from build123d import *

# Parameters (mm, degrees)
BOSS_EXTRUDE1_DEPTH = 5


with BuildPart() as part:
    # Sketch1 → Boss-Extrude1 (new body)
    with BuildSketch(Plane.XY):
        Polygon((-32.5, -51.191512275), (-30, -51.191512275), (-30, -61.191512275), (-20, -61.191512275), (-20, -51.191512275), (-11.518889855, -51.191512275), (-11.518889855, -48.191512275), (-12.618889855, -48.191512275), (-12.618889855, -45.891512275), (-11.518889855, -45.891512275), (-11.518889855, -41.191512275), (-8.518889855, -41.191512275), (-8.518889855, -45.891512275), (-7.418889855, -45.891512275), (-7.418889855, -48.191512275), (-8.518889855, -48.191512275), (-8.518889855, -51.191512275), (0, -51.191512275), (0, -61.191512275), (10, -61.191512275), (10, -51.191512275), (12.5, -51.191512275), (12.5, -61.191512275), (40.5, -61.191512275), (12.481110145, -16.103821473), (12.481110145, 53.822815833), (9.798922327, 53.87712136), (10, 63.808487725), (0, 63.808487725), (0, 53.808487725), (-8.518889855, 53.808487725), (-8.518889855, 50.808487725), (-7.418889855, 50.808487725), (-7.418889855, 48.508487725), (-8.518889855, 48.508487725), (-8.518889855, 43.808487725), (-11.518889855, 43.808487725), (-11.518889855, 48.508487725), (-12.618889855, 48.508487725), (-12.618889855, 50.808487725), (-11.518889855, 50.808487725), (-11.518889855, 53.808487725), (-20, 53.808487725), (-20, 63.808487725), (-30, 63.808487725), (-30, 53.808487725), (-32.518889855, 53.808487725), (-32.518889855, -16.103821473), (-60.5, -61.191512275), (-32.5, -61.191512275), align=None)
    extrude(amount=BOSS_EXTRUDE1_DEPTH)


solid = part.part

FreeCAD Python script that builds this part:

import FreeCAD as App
import Part
import Sketcher

V = App.Vector

doc = App.newDocument("Part")
params = doc.addObject("Spreadsheet::Sheet", "Params")
for row, (alias, value) in enumerate([
    ("sketch1_width", "10 mm"),
    ("sketch1_width2", "3 mm"),
    ("sketch1_width3", "28 mm"),
    ("sketch1_width4", "2.5 mm"),
    ("sketch1_width5", "1.1 mm"),
    ("pad1_length", "5 mm"),
], start=1):
    params.set(f"A{row}", alias)
    params.set(f"B{row}", "=" + value)
    params.setAlias(f"B{row}", alias)

body = doc.addObject("PartDesign::Body", "Body")

# Sketch on XY plane
sketch1 = body.newObject("Sketcher::SketchObject", "Sketch")
sketch1.AttachmentSupport = (doc.getObject("XY_Plane"), [""])
sketch1.MapMode = "FlatFace"
sketch1.addGeometry(Part.LineSegment(V(-32.5, -51.2, 0), V(-30, -51.2, 0)), False)
sketch1.addGeometry(Part.LineSegment(V(-30, -51.2, 0), V(-30, -61.2, 0)), False)
sketch1.addGeometry(Part.LineSegment(V(-30, -61.2, 0), V(-20, -61.2, 0)), False)
sketch1.addGeometry(Part.LineSegment(V(-20, -61.2, 0), V(-20, -51.2, 0)), False)
sketch1.addGeometry(Part.LineSegment(V(-20, -51.2, 0), V(-11.5, -51.2, 0)), False)
sketch1.addGeometry(Part.LineSegment(V(-11.5, -51.2, 0), V(-11.5, -48.2, 0)), False)
sketch1.addGeometry(Part.LineSegment(V(-11.5, -48.2, 0), V(-12.6, -48.2, 0)), False)
sketch1.addGeometry(Part.LineSegment(V(-12.6, -48.2, 0), V(-12.6, -45.9, 0)), False)
sketch1.addGeometry(Part.LineSegment(V(-12.6, -45.9, 0), V(-11.5, -45.9, 0)), False)
sketch1.addGeometry(Part.LineSegment(V(-11.5, -45.9, 0), V(-11.5, -41.2, 0)), False)
sketch1.addGeometry(Part.LineSegment(V(-11.5, -41.2, 0), V(-8.5, -41.2, 0)), False)
sketch1.addGeometry(Part.LineSegment(V(-8.5, -41.2, 0), V(-8.5, -45.9, 0)), False)
sketch1.addGeometry(Part.LineSegment(V(-8.5, -45.9, 0), V(-7.4, -45.9, 0)), False)
sketch1.addGeometry(Part.LineSegment(V(-7.4, -45.9, 0), V(-7.4, -48.2, 0)), False)
sketch1.addGeometry(Part.LineSegment(V(-7.4, -48.2, 0), V(-8.5, -48.2, 0)), False)
sketch1.addGeometry(Part.LineSegment(V(-8.5, -48.2, 0), V(-8.5, -51.2, 0)), False)
sketch1.addGeometry(Part.LineSegment(V(-8.5, -51.2, 0), V(0, -51.2, 0)), False)
sketch1.addGeometry(Part.LineSegment(V(0, -51.2, 0), V(0, -61.2, 0)), False)
sketch1.addGeometry(Part.LineSegment(V(0, -61.2, 0), V(10, -61.2, 0)), False)
sketch1.addGeometry(Part.LineSegment(V(10, -61.2, 0), V(10, -51.2, 0)), False)
sketch1.addGeometry(Part.LineSegment(V(10, -51.2, 0), V(12.5, -51.2, 0)), False)
sketch1.addGeometry(Part.LineSegment(V(12.5, -51.2, 0), V(12.5, -61.2, 0)), False)
sketch1.addGeometry(Part.LineSegment(V(12.5, -61.2, 0), V(40.5, -61.2, 0)), False)
sketch1.addGeometry(Part.LineSegment(V(40.5, -61.2, 0), V(12.5, -16.1, 0)), False)
sketch1.addGeometry(Part.LineSegment(V(12.5, -16.1, 0), V(12.5, 53.8, 0)), False)
sketch1.addGeometry(Part.LineSegment(V(12.5, 53.8, 0), V(9.8, 53.9, 0)), False)
sketch1.addGeometry(Part.LineSegment(V(9.8, 53.9, 0), V(10, 63.8, 0)), False)
sketch1.addGeometry(Part.LineSegment(V(10, 63.8, 0), V(0, 63.8, 0)), False)
sketch1.addGeometry(Part.LineSegment(V(0, 63.8, 0), V(0, 53.8, 0)), False)
sketch1.addGeometry(Part.LineSegment(V(0, 53.8, 0), V(-8.5, 53.8, 0)), False)
sketch1.addGeometry(Part.LineSegment(V(-8.5, 53.8, 0), V(-8.5, 50.8, 0)), False)
sketch1.addGeometry(Part.LineSegment(V(-8.5, 50.8, 0), V(-7.4, 50.8, 0)), False)
sketch1.addGeometry(Part.LineSegment(V(-7.4, 50.8, 0), V(-7.4, 48.5, 0)), False)
sketch1.addGeometry(Part.LineSegment(V(-7.4, 48.5, 0), V(-8.5, 48.5, 0)), False)
sketch1.addGeometry(Part.LineSegment(V(-8.5, 48.5, 0), V(-8.5, 43.8, 0)), False)
sketch1.addGeometry(Part.LineSegment(V(-8.5, 43.8, 0), V(-11.5, 43.8, 0)), False)
sketch1.addGeometry(Part.LineSegment(V(-11.5, 43.8, 0), V(-11.5, 48.5, 0)), False)
sketch1.addGeometry(Part.LineSegment(V(-11.5, 48.5, 0), V(-12.6, 48.5, 0)), False)
sketch1.addGeometry(Part.LineSegment(V(-12.6, 48.5, 0), V(-12.6, 50.8, 0)), False)
sketch1.addGeometry(Part.LineSegment(V(-12.6, 50.8, 0), V(-11.5, 50.8, 0)), False)
sketch1.addGeometry(Part.LineSegment(V(-11.5, 50.8, 0), V(-11.5, 53.8, 0)), False)
sketch1.addGeometry(Part.LineSegment(V(-11.5, 53.8, 0), V(-20, 53.8, 0)), False)
sketch1.addGeometry(Part.LineSegment(V(-20, 53.8, 0), V(-20, 63.8, 0)), False)
sketch1.addGeometry(Part.LineSegment(V(-20, 63.8, 0), V(-30, 63.8, 0)), False)
sketch1.addGeometry(Part.LineSegment(V(-30, 63.8, 0), V(-30, 53.8, 0)), False)
sketch1.addGeometry(Part.LineSegment(V(-30, 53.8, 0), V(-32.5, 53.8, 0)), False)
sketch1.addGeometry(Part.LineSegment(V(-32.5, 53.8, 0), V(-32.5, -16.1, 0)), False)
sketch1.addGeometry(Part.LineSegment(V(-32.5, -16.1, 0), V(-60.5, -61.2, 0)), False)
sketch1.addGeometry(Part.LineSegment(V(-60.5, -61.2, 0), V(-32.5, -61.2, 0)), False)
sketch1.addGeometry(Part.LineSegment(V(-32.5, -61.2, 0), V(-32.5, -51.2, 0)), False)
sketch1.addConstraint(Sketcher.Constraint("Coincident", 0, 2, 1, 1))
sketch1.addConstraint(Sketcher.Constraint("Coincident", 1, 2, 2, 1))
sketch1.addConstraint(Sketcher.Constraint("Coincident", 2, 2, 3, 1))
sketch1.addConstraint(Sketcher.Constraint("Coincident", 3, 2, 4, 1))
sketch1.addConstraint(Sketcher.Constraint("Coincident", 4, 2, 5, 1))
sketch1.addConstraint(Sketcher.Constraint("Coincident", 5, 2, 6, 1))
sketch1.addConstraint(Sketcher.Constraint("Coincident", 6, 2, 7, 1))
sketch1.addConstraint(Sketcher.Constraint("Coincident", 7, 2, 8, 1))
sketch1.addConstraint(Sketcher.Constraint("Coincident", 8, 2, 9, 1))
sketch1.addConstraint(Sketcher.Constraint("Coincident", 9, 2, 10, 1))
sketch1.addConstraint(Sketcher.Constraint("Coincident", 10, 2, 11, 1))
sketch1.addConstraint(Sketcher.Constraint("Coincident", 11, 2, 12, 1))
sketch1.addConstraint(Sketcher.Constraint("Coincident", 12, 2, 13, 1))
sketch1.addConstraint(Sketcher.Constraint("Coincident", 13, 2, 14, 1))
sketch1.addConstraint(Sketcher.Constraint("Coincident", 14, 2, 15, 1))
sketch1.addConstraint(Sketcher.Constraint("Coincident", 15, 2, 16, 1))
sketch1.addConstraint(Sketcher.Constraint("Coincident", 16, 2, 17, 1))
sketch1.addConstraint(Sketcher.Constraint("Coincident", 17, 2, 18, 1))
sketch1.addConstraint(Sketcher.Constraint("Coincident", 18, 2, 19, 1))
sketch1.addConstraint(Sketcher.Constraint("Coincident", 19, 2, 20, 1))
sketch1.addConstraint(Sketcher.Constraint("Coincident", 20, 2, 21, 1))
sketch1.addConstraint(Sketcher.Constraint("Coincident", 21, 2, 22, 1))
sketch1.addConstraint(Sketcher.Constraint("Coincident", 22, 2, 23, 1))
sketch1.addConstraint(Sketcher.Constraint("Coincident", 23, 2, 24, 1))
sketch1.addConstraint(Sketcher.Constraint("Coincident", 24, 2, 25, 1))
sketch1.addConstraint(Sketcher.Constraint("Coincident", 25, 2, 26, 1))
sketch1.addConstraint(Sketcher.Constraint("Coincident", 26, 2, 27, 1))
sketch1.addConstraint(Sketcher.Constraint("Coincident", 27, 2, 28, 1))
sketch1.addConstraint(Sketcher.Constraint("Coincident", 28, 2, 29, 1))
sketch1.addConstraint(Sketcher.Constraint("Coincident", 29, 2, 30, 1))
sketch1.addConstraint(Sketcher.Constraint("Coincident", 30, 2, 31, 1))
sketch1.addConstraint(Sketcher.Constraint("Coincident", 31, 2, 32, 1))
sketch1.addConstraint(Sketcher.Constraint("Coincident", 32, 2, 33, 1))
sketch1.addConstraint(Sketcher.Constraint("Coincident", 33, 2, 34, 1))
sketch1.addConstraint(Sketcher.Constraint("Coincident", 34, 2, 35, 1))
sketch1.addConstraint(Sketcher.Constraint("Coincident", 35, 2, 36, 1))
sketch1.addConstraint(Sketcher.Constraint("Coincident", 36, 2, 37, 1))
sketch1.addConstraint(Sketcher.Constraint("Coincident", 37, 2, 38, 1))
sketch1.addConstraint(Sketcher.Constraint("Coincident", 38, 2, 39, 1))
sketch1.addConstraint(Sketcher.Constraint("Coincident", 39, 2, 40, 1))
sketch1.addConstraint(Sketcher.Constraint("Coincident", 40, 2, 41, 1))
sketch1.addConstraint(Sketcher.Constraint("Coincident", 41, 2, 42, 1))
sketch1.addConstraint(Sketcher.Constraint("Coincident", 42, 2, 43, 1))
sketch1.addConstraint(Sketcher.Constraint("Coincident", 43, 2, 44, 1))
sketch1.addConstraint(Sketcher.Constraint("Coincident", 44, 2, 45, 1))
sketch1.addConstraint(Sketcher.Constraint("Coincident", 45, 2, 46, 1))
sketch1.addConstraint(Sketcher.Constraint("Coincident", 46, 2, 47, 1))
sketch1.addConstraint(Sketcher.Constraint("Coincident", 47, 2, 48, 1))
sketch1.addConstraint(Sketcher.Constraint("Coincident", 48, 2, 49, 1))
sketch1.addConstraint(Sketcher.Constraint("Coincident", 49, 2, 0, 1))
sketch1.addConstraint(Sketcher.Constraint("Horizontal", 0))
sketch1.addConstraint(Sketcher.Constraint("Vertical", 1))
sketch1.addConstraint(Sketcher.Constraint("Horizontal", 2))
sketch1.addConstraint(Sketcher.Constraint("Vertical", 3))
sketch1.addConstraint(Sketcher.Constraint("Horizontal", 4))
sketch1.addConstraint(Sketcher.Constraint("Vertical", 5))
sketch1.addConstraint(Sketcher.Constraint("Horizontal", 6))
sketch1.addConstraint(Sketcher.Constraint("Vertical", 7))
sketch1.addConstraint(Sketcher.Constraint("Horizontal", 8))
sketch1.addConstraint(Sketcher.Constraint("Vertical", 9))
sketch1.addConstraint(Sketcher.Constraint("Horizontal", 10))
sketch1.addConstraint(Sketcher.Constraint("Vertical", 11))
sketch1.addConstraint(Sketcher.Constraint("Horizontal", 12))
sketch1.addConstraint(Sketcher.Constraint("Vertical", 13))
sketch1.addConstraint(Sketcher.Constraint("Horizontal", 14))
sketch1.addConstraint(Sketcher.Constraint("Vertical", 15))
sketch1.addConstraint(Sketcher.Constraint("Horizontal", 16))
sketch1.addConstraint(Sketcher.Constraint("Vertical", 17))
sketch1.addConstraint(Sketcher.Constraint("Horizontal", 18))
sketch1.addConstraint(Sketcher.Constraint("Vertical", 19))
sketch1.addConstraint(Sketcher.Constraint("Horizontal", 20))
sketch1.addConstraint(Sketcher.Constraint("Vertical", 21))
sketch1.addConstraint(Sketcher.Constraint("Horizontal", 22))
sketch1.addConstraint(Sketcher.Constraint("Vertical", 24))
sketch1.addConstraint(Sketcher.Constraint("Horizontal", 27))
sketch1.addConstraint(Sketcher.Constraint("Vertical", 28))
sketch1.addConstraint(Sketcher.Constraint("Horizontal", 29))
sketch1.addConstraint(Sketcher.Constraint("Vertical", 30))
sketch1.addConstraint(Sketcher.Constraint("Horizontal", 31))
sketch1.addConstraint(Sketcher.Constraint("Vertical", 32))
sketch1.addConstraint(Sketcher.Constraint("Horizontal", 33))
sketch1.addConstraint(Sketcher.Constraint("Vertical", 34))
sketch1.addConstraint(Sketcher.Constraint("Horizontal", 35))
sketch1.addConstraint(Sketcher.Constraint("Vertical", 36))
sketch1.addConstraint(Sketcher.Constraint("Horizontal", 37))
sketch1.addConstraint(Sketcher.Constraint("Vertical", 38))
sketch1.addConstraint(Sketcher.Constraint("Horizontal", 39))
sketch1.addConstraint(Sketcher.Constraint("Vertical", 40))
sketch1.addConstraint(Sketcher.Constraint("Horizontal", 41))
sketch1.addConstraint(Sketcher.Constraint("Vertical", 42))
sketch1.addConstraint(Sketcher.Constraint("Horizontal", 43))
sketch1.addConstraint(Sketcher.Constraint("Vertical", 44))
sketch1.addConstraint(Sketcher.Constraint("Horizontal", 45))
sketch1.addConstraint(Sketcher.Constraint("Vertical", 46))
sketch1.addConstraint(Sketcher.Constraint("Horizontal", 48))
sketch1.addConstraint(Sketcher.Constraint("Vertical", 49))
sketch1.addConstraint(Sketcher.Constraint("PointOnObject", 16, 2, -2))
sketch1.addConstraint(Sketcher.Constraint("PointOnObject", 27, 2, -2))
sketch1.addConstraint(Sketcher.Constraint("Perpendicular", 25, 26))
sketch1.addConstraint(Sketcher.Constraint("Horizontal", 0, 2, 3, 2))
sketch1.addConstraint(Sketcher.Constraint("Horizontal", 8, 2, 11, 2))
sketch1.addConstraint(Sketcher.Constraint("Horizontal", 6, 2, 13, 2))
sketch1.addConstraint(Sketcher.Constraint("Horizontal", 4, 2, 15, 2))
sketch1.addConstraint(Sketcher.Constraint("Horizontal", 2, 2, 17, 2))
sketch1.addConstraint(Sketcher.Constraint("Horizontal", 16, 2, 19, 2))
sketch1.addConstraint(Sketcher.Constraint("Horizontal", 18, 2, 21, 2))
sketch1.addConstraint(Sketcher.Constraint("Horizontal", 33, 2, 36, 2))
sketch1.addConstraint(Sketcher.Constraint("Horizontal", 31, 2, 38, 2))
sketch1.addConstraint(Sketcher.Constraint("Horizontal", 29, 2, 40, 2))
sketch1.addConstraint(Sketcher.Constraint("Horizontal", 27, 2, 42, 2))
sketch1.addConstraint(Sketcher.Constraint("Horizontal", 41, 2, 44, 2))
sketch1.addConstraint(Sketcher.Constraint("Horizontal", 23, 2, 46, 2))
sketch1.addConstraint(Sketcher.Constraint("Horizontal", 22, 2, 47, 2))
sketch1.addConstraint(Sketcher.Constraint("Vertical", 5, 2, 8, 2))
sketch1.addConstraint(Sketcher.Constraint("Vertical", 11, 2, 14, 2))
sketch1.addConstraint(Sketcher.Constraint("Vertical", 19, 2, 26, 2))
sketch1.addConstraint(Sketcher.Constraint("Vertical", 15, 2, 29, 2))
sketch1.addConstraint(Sketcher.Constraint("Vertical", 13, 2, 31, 2))
sketch1.addConstraint(Sketcher.Constraint("Vertical", 30, 2, 33, 2))
sketch1.addConstraint(Sketcher.Constraint("Vertical", 9, 2, 35, 2))
sketch1.addConstraint(Sketcher.Constraint("Vertical", 7, 2, 37, 2))
sketch1.addConstraint(Sketcher.Constraint("Vertical", 36, 2, 39, 2))
sketch1.addConstraint(Sketcher.Constraint("Vertical", 3, 2, 41, 2))
sketch1.addConstraint(Sketcher.Constraint("Vertical", 1, 2, 43, 2))
sketch1.addConstraint(Sketcher.Constraint("Equal", 8, 12))
sketch1.addConstraint(Sketcher.Constraint("Equal", 2, 18))
sketch1.addConstraint(Sketcher.Constraint("Equal", 0, 20))
sketch1.addConstraint(Sketcher.Constraint("Equal", 22, 48))
sketch1.addConstraint(Sketcher.Constraint("Equal", 43, 1))
sketch1.addConstraint(Sketcher.Constraint("Equal", 35, 5))
sketch1.addConstraint(Sketcher.Constraint("Equal", 21, 28))
sketch1.addConstraint(Sketcher.Constraint("Equal", 15, 30))
sketch1.addConstraint(Sketcher.Constraint("Equal", 13, 32))
sketch1.addConstraint(Sketcher.Constraint("Equal", 11, 34))
sketch1.addConstraint(Sketcher.Constraint("DistanceX", 2, 1, 2, 2, 10.0))
sketch1.addConstraint(Sketcher.Constraint("DistanceX", 10, 1, 10, 2, 3.0))
sketch1.addConstraint(Sketcher.Constraint("DistanceX", 22, 1, 22, 2, 28.0))
sketch1.addConstraint(Sketcher.Constraint("DistanceX", 0, 1, 0, 2, 2.5))
sketch1.addConstraint(Sketcher.Constraint("DistanceX", 6, 2, 6, 1, 1.1))
sketch1.addConstraint(Sketcher.Constraint("DistanceY", 7, 1, 7, 2, 2.3))
sketch1.addConstraint(Sketcher.Constraint("DistanceY", 9, 1, 9, 2, 4.7))
sketch1.addConstraint(Sketcher.Constraint("DistanceX", 0, 2, -1, 1, 30.0))
sketch1.addConstraint(Sketcher.Constraint("DistanceX", 10, 2, 23, 2, 21.0))
sketch1.addConstraint(Sketcher.Constraint("DistanceY", 10, 2, 26, 2, 105.0))
sketch1.addConstraint(Sketcher.Constraint("DistanceX", 46, 2, 9, 2, 21.0))
sketch1.addConstraint(Sketcher.Constraint("Distance", 26, 9.933402))
sketch1.addConstraint(Sketcher.Constraint("DistanceX", 4, 1, 4, 2, 8.48111))
sketch1.addConstraint(Sketcher.Constraint("DistanceY", 46, 2, 46, 1, 69.912309))
sketch1.addConstraint(Sketcher.Constraint("DistanceY", 24, 1, 24, 2, 69.926637))
sketch1.addConstraint(Sketcher.Constraint("DistanceY", 23, 2, -1, 1, 16.103821))
sketch1.setExpression("Constraints[134]", "Params.sketch1_width")
sketch1.setExpression("Constraints[135]", "Params.sketch1_width2")
sketch1.setExpression("Constraints[136]", "Params.sketch1_width3")
sketch1.setExpression("Constraints[137]", "Params.sketch1_width4")
sketch1.setExpression("Constraints[138]", "Params.sketch1_width5")
pad1 = body.newObject("PartDesign::Pad", "Pad")
pad1.Profile = sketch1
pad1.setExpression("Length", "Params.pad1_length")

doc.recompute()
